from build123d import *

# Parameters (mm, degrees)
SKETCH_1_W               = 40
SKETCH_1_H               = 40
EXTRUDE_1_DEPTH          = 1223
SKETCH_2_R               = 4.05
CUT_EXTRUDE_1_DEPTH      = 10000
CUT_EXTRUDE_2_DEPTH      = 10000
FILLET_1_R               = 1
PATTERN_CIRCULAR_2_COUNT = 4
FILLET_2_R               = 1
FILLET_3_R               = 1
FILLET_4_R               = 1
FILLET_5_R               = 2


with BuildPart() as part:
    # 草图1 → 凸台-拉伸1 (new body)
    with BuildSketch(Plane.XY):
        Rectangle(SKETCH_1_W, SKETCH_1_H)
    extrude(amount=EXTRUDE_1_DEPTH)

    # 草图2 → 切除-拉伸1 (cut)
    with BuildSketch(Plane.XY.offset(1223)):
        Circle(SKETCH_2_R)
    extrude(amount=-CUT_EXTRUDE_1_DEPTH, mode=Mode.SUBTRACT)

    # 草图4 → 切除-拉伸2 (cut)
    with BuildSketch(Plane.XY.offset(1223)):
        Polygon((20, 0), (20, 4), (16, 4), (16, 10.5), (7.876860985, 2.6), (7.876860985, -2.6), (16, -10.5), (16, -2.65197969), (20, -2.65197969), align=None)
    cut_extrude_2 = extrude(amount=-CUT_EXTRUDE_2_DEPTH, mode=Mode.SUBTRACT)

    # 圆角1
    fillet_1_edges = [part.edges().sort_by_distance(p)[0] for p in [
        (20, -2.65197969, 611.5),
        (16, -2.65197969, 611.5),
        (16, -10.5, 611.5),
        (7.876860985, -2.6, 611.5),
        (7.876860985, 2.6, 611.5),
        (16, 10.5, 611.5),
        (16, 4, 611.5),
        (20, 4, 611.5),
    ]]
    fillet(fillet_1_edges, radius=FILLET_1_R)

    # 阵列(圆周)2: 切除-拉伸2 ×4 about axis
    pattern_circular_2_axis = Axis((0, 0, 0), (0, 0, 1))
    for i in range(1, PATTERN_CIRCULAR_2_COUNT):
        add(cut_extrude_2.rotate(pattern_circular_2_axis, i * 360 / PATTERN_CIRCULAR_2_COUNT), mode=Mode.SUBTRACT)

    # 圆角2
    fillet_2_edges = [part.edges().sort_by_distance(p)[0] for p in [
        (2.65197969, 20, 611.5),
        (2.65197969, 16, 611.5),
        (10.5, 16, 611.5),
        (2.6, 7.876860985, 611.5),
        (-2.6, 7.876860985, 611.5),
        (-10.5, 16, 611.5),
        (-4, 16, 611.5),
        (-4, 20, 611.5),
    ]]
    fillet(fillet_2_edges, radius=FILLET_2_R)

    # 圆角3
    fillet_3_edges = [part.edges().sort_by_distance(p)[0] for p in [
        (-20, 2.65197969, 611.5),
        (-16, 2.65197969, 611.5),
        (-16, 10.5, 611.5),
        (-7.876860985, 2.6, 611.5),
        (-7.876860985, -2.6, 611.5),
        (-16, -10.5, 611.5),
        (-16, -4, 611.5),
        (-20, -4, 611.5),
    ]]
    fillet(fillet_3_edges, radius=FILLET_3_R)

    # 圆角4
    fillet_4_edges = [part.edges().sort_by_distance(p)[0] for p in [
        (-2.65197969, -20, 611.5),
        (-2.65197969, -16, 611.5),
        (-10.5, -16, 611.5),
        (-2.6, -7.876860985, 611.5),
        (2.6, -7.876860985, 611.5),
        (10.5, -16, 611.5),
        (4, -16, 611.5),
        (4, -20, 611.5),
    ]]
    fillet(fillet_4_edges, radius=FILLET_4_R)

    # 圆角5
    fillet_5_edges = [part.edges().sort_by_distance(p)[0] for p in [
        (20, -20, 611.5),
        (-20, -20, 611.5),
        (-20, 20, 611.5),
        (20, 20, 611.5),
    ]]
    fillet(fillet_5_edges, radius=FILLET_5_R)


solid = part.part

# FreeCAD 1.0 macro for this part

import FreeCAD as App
import Part
import Sketcher


def edges_at(feature, points):
    """Names of the edges that pass closest to the given points."""
    edges = feature.Shape.Edges
    near = lambda p: min(range(len(edges)), key=lambda i: edges[i].distToShape(Part.Vertex(*p))[0])
    return sorted({f"Edge{near(p) + 1}" for p in points})


def add_polygon(sketch, points):
    """Adds a closed chain of lines whose ends are joined by coincident constraints."""
    first, n = sketch.GeometryCount, len(points)
    for a, b in zip(points, points[1:] + points[:1]):
        sketch.addGeometry(Part.LineSegment(App.Vector(*a, 0), App.Vector(*b, 0)), False)
    for i in range(n):
        sketch.addConstraint(Sketcher.Constraint("Coincident", first + i, 2, first + (i + 1) % n, 1))

doc = App.newDocument("Part")
body = doc.addObject("PartDesign::Body", "Body")

# Sketch on XY plane
sketch1 = body.newObject("Sketcher::SketchObject", "Sketch")
sketch1.AttachmentSupport = (doc.getObject("XY_Plane"), [""])
sketch1.MapMode = "FlatFace"
add_polygon(sketch1, [(-20, 20), (-20, -20), (20, -20), (20, 20)])  # lines 0-3
sketch1.addConstraint([
    Sketcher.Constraint("Vertical", 0),
    Sketcher.Constraint("Horizontal", 1),
    Sketcher.Constraint("Vertical", 2),
    Sketcher.Constraint("Horizontal", 3),
    Sketcher.Constraint("Symmetric", 0, 2, 2, 2, -1, 1),
    Sketcher.Constraint("Equal", 3, 0),
    Sketcher.Constraint("DistanceX", 1, 1, 1, 2, 40.0),
])
pad1 = body.newObject("PartDesign::Pad", "Pad")
pad1.Profile = sketch1
pad1.Length = 1223

# Sketch on XY plane
sketch2 = body.newObject("Sketcher::SketchObject", "Sketch001")
sketch2.AttachmentSupport = (doc.getObject("XY_Plane"), [""])
sketch2.MapMode = "FlatFace"
sketch2.AttachmentOffset = App.Placement(App.Vector(0, 0, 1223), App.Rotation())
sketch2.addGeometry(Part.Circle(App.Vector(0, 0, 0), App.Vector(0, 0, 1), 4.05), False)
sketch2.addConstraint([
    Sketcher.Constraint("Coincident", 0, 3, -1, 1),
    Sketcher.Constraint("Diameter", 0, 8.1),
])
pocket1 = body.newObject("PartDesign::Pocket", "Pocket")
pocket1.Profile = sketch2
pocket1.Length = 10000

# Sketch on XY plane
sketch3 = body.newObject("Sketcher::SketchObject", "Sketch002")
sketch3.AttachmentSupport = (doc.getObject("XY_Plane"), [""])
sketch3.MapMode = "FlatFace"
sketch3.AttachmentOffset = App.Placement(App.Vector(0, 0, 1223), App.Rotation())
add_polygon(sketch3, [(20, 4), (16, 4), (16, 10.5), (7.876861, 2.6), (7.876861, -2.6), (16, -10.5), (16, -2.65198), (20, -2.65198)])  # lines 0-7
sketch3.addConstraint([
    Sketcher.Constraint("Horizontal", 0),
    Sketcher.Constraint("Vertical", 1),
    Sketcher.Constraint("Vertical", 3),
    Sketcher.Constraint("Vertical", 5),
    Sketcher.Constraint("Horizontal", 6),
    Sketcher.Constraint("Vertical", 7),
    Sketcher.Constraint("Symmetric", 1, 2, 4, 2, -1),
    Sketcher.Constraint("Equal", 2, 4),
    Sketcher.Constraint("DistanceX", 0, 2, 0, 1, 4.0),
    Sketcher.Constraint("DistanceY", 1, 1, 1, 2, 6.5),
    Sketcher.Constraint("DistanceY", 3, 2, 3, 1, 5.2),
    Sketcher.Constraint("DistanceX", -1, 1, 0, 2, 16.0),
    Sketcher.Constraint("DistanceY", -1, 1, 0, 2, 4.0),
    Sketcher.Constraint("DistanceY", 5, 1, 5, 2, 7.84802),
    Sketcher.Constraint("Distance", 2, 11.331169),
])
pocket2 = body.newObject("PartDesign::Pocket", "Pocket001")
pocket2.Profile = sketch3
pocket2.Length = 10000
doc.recompute()

fillet = body.newObject("PartDesign::Fillet", "Fillet")
fillet.Base = (pocket2, edges_at(pocket2, [
    (20, -2.652, 611.5),
    (16, -2.652, 611.5),
    (16, -10.5, 611.5),
    (7.877, -2.6, 611.5),
    (7.877, 2.6, 611.5),
    (16, 10.5, 611.5),
    (16, 4, 611.5),
    (20, 4, 611.5),
]))
fillet.Radius = 1
doc.recompute()

polarpattern = body.newObject("PartDesign::PolarPattern", "PolarPattern")
polarpattern.Originals = [pocket2]
polarpattern.Axis = (doc.getObject("Z_Axis"), [""])
polarpattern.Angle = 360
polarpattern.Occurrences = 4
body.Tip = polarpattern
doc.recompute()

fillet2 = body.newObject("PartDesign::Fillet", "Fillet001")
fillet2.Base = (polarpattern, edges_at(polarpattern, [
    (2.652, 20, 611.5),
    (2.652, 16, 611.5),
    (10.5, 16, 611.5),
    (2.6, 7.877, 611.5),
    (-2.6, 7.877, 611.5),
    (-10.5, 16, 611.5),
    (-4, 16, 611.5),
    (-4, 20, 611.5),
]))
fillet2.Radius = 1
doc.recompute()

fillet3 = body.newObject("PartDesign::Fillet", "Fillet002")
fillet3.Base = (fillet2, edges_at(fillet2, [
    (-20, 2.652, 611.5),
    (-16, 2.652, 611.5),
    (-16, 10.5, 611.5),
    (-7.877, 2.6, 611.5),
    (-7.877, -2.6, 611.5),
    (-16, -10.5, 611.5),
    (-16, -4, 611.5),
    (-20, -4, 611.5),
]))
fillet3.Radius = 1
doc.recompute()

fillet4 = body.newObject("PartDesign::Fillet", "Fillet003")
fillet4.Base = (fillet3, edges_at(fillet3, [
    (-2.652, -20, 611.5),
    (-2.652, -16, 611.5),
    (-10.5, -16, 611.5),
    (-2.6, -7.877, 611.5),
    (2.6, -7.877, 611.5),
    (10.5, -16, 611.5),
    (4, -16, 611.5),
    (4, -20, 611.5),
]))
fillet4.Radius = 1
doc.recompute()

fillet5 = body.newObject("PartDesign::Fillet", "Fillet004")
fillet5.Base = (fillet4, edges_at(fillet4, [
    (20, -20, 611.5),
    (-20, -20, 611.5),
    (-20, 20, 611.5),
    (20, 20, 611.5),
]))
fillet5.Radius = 2

doc.recompute()
